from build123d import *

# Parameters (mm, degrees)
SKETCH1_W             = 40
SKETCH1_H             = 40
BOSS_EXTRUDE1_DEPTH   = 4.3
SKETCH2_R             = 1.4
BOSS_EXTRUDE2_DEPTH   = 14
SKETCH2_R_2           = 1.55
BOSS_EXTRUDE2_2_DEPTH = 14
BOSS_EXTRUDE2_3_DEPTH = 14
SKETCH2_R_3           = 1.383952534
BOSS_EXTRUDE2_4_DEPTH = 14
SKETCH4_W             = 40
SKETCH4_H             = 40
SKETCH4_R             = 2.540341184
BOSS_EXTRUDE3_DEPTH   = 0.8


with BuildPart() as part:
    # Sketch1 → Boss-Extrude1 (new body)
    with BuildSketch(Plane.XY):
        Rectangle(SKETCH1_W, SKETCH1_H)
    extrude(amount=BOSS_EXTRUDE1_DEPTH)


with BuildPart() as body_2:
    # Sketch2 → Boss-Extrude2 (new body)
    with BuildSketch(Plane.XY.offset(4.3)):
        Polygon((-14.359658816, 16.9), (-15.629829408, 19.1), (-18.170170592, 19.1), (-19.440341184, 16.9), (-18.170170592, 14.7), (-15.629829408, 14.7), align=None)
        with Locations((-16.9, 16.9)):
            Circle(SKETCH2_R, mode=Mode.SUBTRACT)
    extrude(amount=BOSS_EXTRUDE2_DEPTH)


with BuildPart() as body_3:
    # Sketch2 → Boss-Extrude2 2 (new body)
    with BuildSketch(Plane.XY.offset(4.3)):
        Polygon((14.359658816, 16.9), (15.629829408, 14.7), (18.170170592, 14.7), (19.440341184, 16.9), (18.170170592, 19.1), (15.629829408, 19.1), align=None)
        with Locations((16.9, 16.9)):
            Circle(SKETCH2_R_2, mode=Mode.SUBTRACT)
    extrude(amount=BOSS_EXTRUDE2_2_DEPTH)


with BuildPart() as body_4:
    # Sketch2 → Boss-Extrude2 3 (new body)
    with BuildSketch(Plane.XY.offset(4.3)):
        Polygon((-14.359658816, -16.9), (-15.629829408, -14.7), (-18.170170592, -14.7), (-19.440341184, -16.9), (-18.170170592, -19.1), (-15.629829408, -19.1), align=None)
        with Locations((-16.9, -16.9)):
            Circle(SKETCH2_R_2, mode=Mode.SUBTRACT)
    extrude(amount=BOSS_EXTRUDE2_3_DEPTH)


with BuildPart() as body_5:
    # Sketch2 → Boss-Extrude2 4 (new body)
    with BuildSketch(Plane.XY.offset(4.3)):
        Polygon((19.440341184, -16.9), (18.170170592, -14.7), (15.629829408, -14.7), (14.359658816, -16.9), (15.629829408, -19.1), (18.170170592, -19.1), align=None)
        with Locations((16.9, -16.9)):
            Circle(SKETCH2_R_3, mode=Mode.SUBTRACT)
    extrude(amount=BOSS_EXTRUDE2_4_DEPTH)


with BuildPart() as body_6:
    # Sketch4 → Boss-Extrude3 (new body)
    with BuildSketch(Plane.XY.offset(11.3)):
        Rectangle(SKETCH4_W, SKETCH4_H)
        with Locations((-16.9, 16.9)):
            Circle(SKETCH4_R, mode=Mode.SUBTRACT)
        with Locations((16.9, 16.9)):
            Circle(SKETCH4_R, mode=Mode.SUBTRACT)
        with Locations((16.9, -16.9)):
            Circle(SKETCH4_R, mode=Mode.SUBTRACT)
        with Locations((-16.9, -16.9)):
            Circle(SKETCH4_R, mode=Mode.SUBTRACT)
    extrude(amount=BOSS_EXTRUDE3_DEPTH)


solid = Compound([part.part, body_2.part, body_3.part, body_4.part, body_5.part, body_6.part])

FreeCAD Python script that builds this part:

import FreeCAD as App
import Part
import Sketcher

V = App.Vector
Q = App.Units.Quantity


def add_polygon(sketch, points):
    """Adds a closed chain of lines whose ends are joined by coincident constraints."""
    first, n = sketch.GeometryCount, len(points)
    for a, b in zip(points, points[1:] + points[:1]):
        sketch.addGeometry(Part.LineSegment(App.Vector(*a, 0), App.Vector(*b, 0)), False)
    for i in range(n):
        sketch.addConstraint(Sketcher.Constraint("Coincident", first + i, 2, first + (i + 1) % n, 1))

doc = App.newDocument("Part")
body = doc.addObject("PartDesign::Body", "Body")

sketch1 = body.newObject("Sketcher::SketchObject", "Sketch")
sketch1.AttachmentSupport = (doc.getObject("XY_Plane"), [""])
sketch1.MapMode = "FlatFace"
add_polygon(sketch1, [(-20, 20), (-20, -20), (20, -20), (20, 20)])
sketch1.addConstraint(Sketcher.Constraint("Vertical", 0))
sketch1.addConstraint(Sketcher.Constraint("Horizontal", 1))
sketch1.addConstraint(Sketcher.Constraint("Vertical", 2))
sketch1.addConstraint(Sketcher.Constraint("Horizontal", 3))
sketch1.addConstraint(Sketcher.Constraint("Symmetric", 0, 2, 2, 2, -1, 1))
sketch1.addConstraint(Sketcher.Constraint("Equal", 3, 0))
sketch1.addConstraint(Sketcher.Constraint("DistanceX", 1, 1, 1, 2, 40.0))
pad1 = body.newObject("PartDesign::Pad", "Pad")
pad1.Profile = sketch1
pad1.Length = 4.3
body2 = doc.addObject("PartDesign::Body", "Body001")

sketch2 = body2.newObject("Sketcher::SketchObject", "Sketch001")
sketch2.AttachmentSupport = (doc.getObject("XY_Plane001"), [""])
sketch2.MapMode = "FlatFace"
sketch2.AttachmentOffset = App.Placement(V(0, 0, 4.3), App.Rotation())
add_polygon(sketch2, [(-14.359659, 16.9), (-15.629829, 19.1), (-18.170171, 19.1), (-19.440341, 16.9), (-18.170171, 14.7), (-15.629829, 14.7)])
sketch2.addGeometry(Part.Circle(V(-16.9, 16.9, 0), V(0, 0, 1), 1.4), False)
sketch2.addConstraint(Sketcher.Constraint("Horizontal", 1))
sketch2.addConstraint(Sketcher.Constraint("Horizontal", 4))
sketch2.addConstraint(Sketcher.Constraint("Parallel", 0, 3))
sketch2.addConstraint(Sketcher.Constraint("Parallel", 2, 5))
sketch2.addConstraint(Sketcher.Constraint("Horizontal", 6, 3, 2, 2))
sketch2.addConstraint(Sketcher.Constraint("Horizontal", 2, 2, 5, 2))
sketch2.addConstraint(Sketcher.Constraint("Vertical", 1, 2, 3, 2))
sketch2.addConstraint(Sketcher.Constraint("Vertical", 0, 2, 4, 2))
sketch2.addConstraint(Sketcher.Constraint("Diameter", 6, 2.8))
sketch2.addConstraint(Sketcher.Constraint("Angle", 0, Q("120 deg")))
sketch2.addConstraint(Sketcher.Constraint("DistanceX", 6, 3, -1, 1, 16.9))
sketch2.addConstraint(Sketcher.Constraint("DistanceY", -1, 1, 6, 3, 16.9))
sketch2.addConstraint(Sketcher.Constraint("DistanceY", -1, 1, 0, 2, 19.1))
sketch2.addConstraint(Sketcher.Constraint("DistanceX", 1, 2, 1, 1, 2.540341))
sketch2.addConstraint(Sketcher.Constraint("DistanceX", 0, 2, -1, 1, 15.629829))
pad2 = body2.newObject("PartDesign::Pad", "Pad001")
pad2.Profile = sketch2
pad2.Length = 14
body3 = doc.addObject("PartDesign::Body", "Body002")

sketch3 = body3.newObject("Sketcher::SketchObject", "Sketch002")
sketch3.AttachmentSupport = (doc.getObject("XY_Plane002"), [""])
sketch3.MapMode = "FlatFace"
sketch3.AttachmentOffset = App.Placement(V(0, 0, 4.3), App.Rotation())
add_polygon(sketch3, [(14.359659, 16.9), (15.629829, 14.7), (18.170171, 14.7), (19.440341, 16.9), (18.170171, 19.1), (15.629829, 19.1)])
sketch3.addGeometry(Part.Circle(V(16.9, 16.9, 0), V(0, 0, 1), 1.55), False)
sketch3.addConstraint(Sketcher.Constraint("Horizontal", 1))
sketch3.addConstraint(Sketcher.Constraint("Horizontal", 4))
sketch3.addConstraint(Sketcher.Constraint("Parallel", 0, 3))
sketch3.addConstraint(Sketcher.Constraint("Parallel", 2, 5))
sketch3.addConstraint(Sketcher.Constraint("Horizontal", 6, 3, 2, 2))
sketch3.addConstraint(Sketcher.Constraint("Horizontal", 2, 2, 5, 2))
sketch3.addConstraint(Sketcher.Constraint("Vertical", 1, 2, 3, 2))
sketch3.addConstraint(Sketcher.Constraint("Vertical", 0, 2, 4, 2))
sketch3.addConstraint(Sketcher.Constraint("Diameter", 6, 3.1))
sketch3.addConstraint(Sketcher.Constraint("Angle", 0, Q("-60 deg")))
sketch3.addConstraint(Sketcher.Constraint("DistanceX", -1, 1, 6, 3, 16.9))
sketch3.addConstraint(Sketcher.Constraint("DistanceY", -1, 1, 6, 3, 16.9))
sketch3.addConstraint(Sketcher.Constraint("DistanceY", -1, 1, 0, 2, 14.7))
sketch3.addConstraint(Sketcher.Constraint("DistanceX", 1, 1, 1, 2, 2.540341))
sketch3.addConstraint(Sketcher.Constraint("DistanceX", -1, 1, 0, 2, 15.629829))
pad3 = body3.newObject("PartDesign::Pad", "Pad002")
pad3.Profile = sketch3
pad3.Length = 14
body4 = doc.addObject("PartDesign::Body", "Body003")

sketch4 = body4.newObject("Sketcher::SketchObject", "Sketch003")
sketch4.AttachmentSupport = (doc.getObject("XY_Plane003"), [""])
sketch4.MapMode = "FlatFace"
sketch4.AttachmentOffset = App.Placement(V(0, 0, 4.3), App.Rotation())
add_polygon(sketch4, [(-14.359659, -16.9), (-15.629829, -14.7), (-18.170171, -14.7), (-19.440341, -16.9), (-18.170171, -19.1), (-15.629829, -19.1)])
sketch4.addGeometry(Part.Circle(V(-16.9, -16.9, 0), V(0, 0, 1), 1.55), False)
sketch4.addConstraint(Sketcher.Constraint("Horizontal", 1))
sketch4.addConstraint(Sketcher.Constraint("Horizontal", 4))
sketch4.addConstraint(Sketcher.Constraint("Parallel", 0, 3))
sketch4.addConstraint(Sketcher.Constraint("Parallel", 2, 5))
sketch4.addConstraint(Sketcher.Constraint("Horizontal", 6, 3, 2, 2))
sketch4.addConstraint(Sketcher.Constraint("Horizontal", 2, 2, 5, 2))
sketch4.addConstraint(Sketcher.Constraint("Vertical", 1, 2, 3, 2))
sketch4.addConstraint(Sketcher.Constraint("Vertical", 0, 2, 4, 2))
sketch4.addConstraint(Sketcher.Constraint("Diameter", 6, 3.1))
sketch4.addConstraint(Sketcher.Constraint("Angle", 0, Q("120 deg")))
sketch4.addConstraint(Sketcher.Constraint("DistanceX", 6, 3, -1, 1, 16.9))
sketch4.addConstraint(Sketcher.Constraint("DistanceY", 6, 3, -1, 1, 16.9))
sketch4.addConstraint(Sketcher.Constraint("DistanceY", 0, 2, -1, 1, 14.7))
sketch4.addConstraint(Sketcher.Constraint("DistanceX", 1, 2, 1, 1, 2.540341))
sketch4.addConstraint(Sketcher.Constraint("DistanceX", 0, 2, -1, 1, 15.629829))
pad4 = body4.newObject("PartDesign::Pad", "Pad003")
pad4.Profile = sketch4
pad4.Length = 14
body5 = doc.addObject("PartDesign::Body", "Body004")

sketch5 = body5.newObject("Sketcher::SketchObject", "Sketch004")
sketch5.AttachmentSupport = (doc.getObject("XY_Plane004"), [""])
sketch5.MapMode = "FlatFace"
sketch5.AttachmentOffset = App.Placement(V(0, 0, 4.3), App.Rotation())
add_polygon(sketch5, [(19.440341, -16.9), (18.170171, -14.7), (15.629829, -14.7), (14.359659, -16.9), (15.629829, -19.1), (18.170171, -19.1)])
sketch5.addGeometry(Part.Circle(V(16.9, -16.9, 0), V(0, 0, 1), 1.383953), False)
sketch5.addConstraint(Sketcher.Constraint("Horizontal", 1))
sketch5.addConstraint(Sketcher.Constraint("Horizontal", 4))
sketch5.addConstraint(Sketcher.Constraint("Parallel", 0, 3))
sketch5.addConstraint(Sketcher.Constraint("Parallel", 2, 5))
sketch5.addConstraint(Sketcher.Constraint("Horizontal", 6, 3, 2, 2))
sketch5.addConstraint(Sketcher.Constraint("Horizontal", 2, 2, 5, 2))
sketch5.addConstraint(Sketcher.Constraint("Vertical", 1, 2, 3, 2))
sketch5.addConstraint(Sketcher.Constraint("Vertical", 0, 2, 4, 2))
sketch5.addConstraint(Sketcher.Constraint("Angle", 0, Q("120 deg")))
sketch5.addConstraint(Sketcher.Constraint("DistanceX", -1, 1, 6, 3, 16.9))
sketch5.addConstraint(Sketcher.Constraint("DistanceY", 6, 3, -1, 1, 16.9))
sketch5.addConstraint(Sketcher.Constraint("DistanceY", 0, 2, -1, 1, 14.7))
sketch5.addConstraint(Sketcher.Constraint("Diameter", 6, 2.767905))
sketch5.addConstraint(Sketcher.Constraint("DistanceX", 1, 2, 1, 1, 2.540341))
sketch5.addConstraint(Sketcher.Constraint("DistanceX", -1, 1, 0, 2, 18.170171))
pad5 = body5.newObject("PartDesign::Pad", "Pad004")
pad5.Profile = sketch5
pad5.Length = 14
body6 = doc.addObject("PartDesign::Body", "Body005")

sketch6 = body6.newObject("Sketcher::SketchObject", "Sketch005")
sketch6.AttachmentSupport = (doc.getObject("XY_Plane005"), [""])
sketch6.MapMode = "FlatFace"
sketch6.AttachmentOffset = App.Placement(V(0, 0, 11.3), App.Rotation())
add_polygon(sketch6, [(-20, 20), (-20, -20), (20, -20), (20, 20)])
sketch6.addGeometry(Part.Circle(V(-16.9, -16.9, 0), V(0, 0, 1), 2.540341), False)
sketch6.addGeometry(Part.Circle(V(16.9, -16.9, 0), V(0, 0, 1), 2.540341), False)
sketch6.addGeometry(Part.Circle(V(-16.9, 16.9, 0), V(0, 0, 1), 2.540341), False)
sketch6.addGeometry(Part.Circle(V(16.9, 16.9, 0), V(0, 0, 1), 2.540341), False)
sketch6.addConstraint(Sketcher.Constraint("Vertical", 0))
sketch6.addConstraint(Sketcher.Constraint("Horizontal", 1))
sketch6.addConstraint(Sketcher.Constraint("Vertical", 2))
sketch6.addConstraint(Sketcher.Constraint("Horizontal", 3))
sketch6.addConstraint(Sketcher.Constraint("Equal", 4, 5))
sketch6.addConstraint(Sketcher.Constraint("Equal", 5, 6))
sketch6.addConstraint(Sketcher.Constraint("Equal", 6, 7))
sketch6.addConstraint(Sketcher.Constraint("Symmetric", 5, 3, 6, 3, -1, 1))
sketch6.addConstraint(Sketcher.Constraint("Symmetric", 4, 3, 7, 3, -1, 1))
sketch6.addConstraint(Sketcher.Constraint("Symmetric", 0, 2, 2, 2, -1, 1))
sketch6.addConstraint(Sketcher.Constraint("Symmetric", 4, 3, 5, 3, -2))
sketch6.addConstraint(Sketcher.Constraint("Equal", 3, 0))
sketch6.addConstraint(Sketcher.Constraint("DistanceX", 1, 1, 1, 2, 40.0))
sketch6.addConstraint(Sketcher.Constraint("DistanceX", 4, 3, -1, 1, 16.9))
sketch6.addConstraint(Sketcher.Constraint("DistanceY", 4, 3, -1, 1, 16.9))
sketch6.addConstraint(Sketcher.Constraint("Diameter", 4, 5.080682))
pad6 = body6.newObject("PartDesign::Pad", "Pad005")
pad6.Profile = sketch6
pad6.Length = 0.8

doc.recompute()
